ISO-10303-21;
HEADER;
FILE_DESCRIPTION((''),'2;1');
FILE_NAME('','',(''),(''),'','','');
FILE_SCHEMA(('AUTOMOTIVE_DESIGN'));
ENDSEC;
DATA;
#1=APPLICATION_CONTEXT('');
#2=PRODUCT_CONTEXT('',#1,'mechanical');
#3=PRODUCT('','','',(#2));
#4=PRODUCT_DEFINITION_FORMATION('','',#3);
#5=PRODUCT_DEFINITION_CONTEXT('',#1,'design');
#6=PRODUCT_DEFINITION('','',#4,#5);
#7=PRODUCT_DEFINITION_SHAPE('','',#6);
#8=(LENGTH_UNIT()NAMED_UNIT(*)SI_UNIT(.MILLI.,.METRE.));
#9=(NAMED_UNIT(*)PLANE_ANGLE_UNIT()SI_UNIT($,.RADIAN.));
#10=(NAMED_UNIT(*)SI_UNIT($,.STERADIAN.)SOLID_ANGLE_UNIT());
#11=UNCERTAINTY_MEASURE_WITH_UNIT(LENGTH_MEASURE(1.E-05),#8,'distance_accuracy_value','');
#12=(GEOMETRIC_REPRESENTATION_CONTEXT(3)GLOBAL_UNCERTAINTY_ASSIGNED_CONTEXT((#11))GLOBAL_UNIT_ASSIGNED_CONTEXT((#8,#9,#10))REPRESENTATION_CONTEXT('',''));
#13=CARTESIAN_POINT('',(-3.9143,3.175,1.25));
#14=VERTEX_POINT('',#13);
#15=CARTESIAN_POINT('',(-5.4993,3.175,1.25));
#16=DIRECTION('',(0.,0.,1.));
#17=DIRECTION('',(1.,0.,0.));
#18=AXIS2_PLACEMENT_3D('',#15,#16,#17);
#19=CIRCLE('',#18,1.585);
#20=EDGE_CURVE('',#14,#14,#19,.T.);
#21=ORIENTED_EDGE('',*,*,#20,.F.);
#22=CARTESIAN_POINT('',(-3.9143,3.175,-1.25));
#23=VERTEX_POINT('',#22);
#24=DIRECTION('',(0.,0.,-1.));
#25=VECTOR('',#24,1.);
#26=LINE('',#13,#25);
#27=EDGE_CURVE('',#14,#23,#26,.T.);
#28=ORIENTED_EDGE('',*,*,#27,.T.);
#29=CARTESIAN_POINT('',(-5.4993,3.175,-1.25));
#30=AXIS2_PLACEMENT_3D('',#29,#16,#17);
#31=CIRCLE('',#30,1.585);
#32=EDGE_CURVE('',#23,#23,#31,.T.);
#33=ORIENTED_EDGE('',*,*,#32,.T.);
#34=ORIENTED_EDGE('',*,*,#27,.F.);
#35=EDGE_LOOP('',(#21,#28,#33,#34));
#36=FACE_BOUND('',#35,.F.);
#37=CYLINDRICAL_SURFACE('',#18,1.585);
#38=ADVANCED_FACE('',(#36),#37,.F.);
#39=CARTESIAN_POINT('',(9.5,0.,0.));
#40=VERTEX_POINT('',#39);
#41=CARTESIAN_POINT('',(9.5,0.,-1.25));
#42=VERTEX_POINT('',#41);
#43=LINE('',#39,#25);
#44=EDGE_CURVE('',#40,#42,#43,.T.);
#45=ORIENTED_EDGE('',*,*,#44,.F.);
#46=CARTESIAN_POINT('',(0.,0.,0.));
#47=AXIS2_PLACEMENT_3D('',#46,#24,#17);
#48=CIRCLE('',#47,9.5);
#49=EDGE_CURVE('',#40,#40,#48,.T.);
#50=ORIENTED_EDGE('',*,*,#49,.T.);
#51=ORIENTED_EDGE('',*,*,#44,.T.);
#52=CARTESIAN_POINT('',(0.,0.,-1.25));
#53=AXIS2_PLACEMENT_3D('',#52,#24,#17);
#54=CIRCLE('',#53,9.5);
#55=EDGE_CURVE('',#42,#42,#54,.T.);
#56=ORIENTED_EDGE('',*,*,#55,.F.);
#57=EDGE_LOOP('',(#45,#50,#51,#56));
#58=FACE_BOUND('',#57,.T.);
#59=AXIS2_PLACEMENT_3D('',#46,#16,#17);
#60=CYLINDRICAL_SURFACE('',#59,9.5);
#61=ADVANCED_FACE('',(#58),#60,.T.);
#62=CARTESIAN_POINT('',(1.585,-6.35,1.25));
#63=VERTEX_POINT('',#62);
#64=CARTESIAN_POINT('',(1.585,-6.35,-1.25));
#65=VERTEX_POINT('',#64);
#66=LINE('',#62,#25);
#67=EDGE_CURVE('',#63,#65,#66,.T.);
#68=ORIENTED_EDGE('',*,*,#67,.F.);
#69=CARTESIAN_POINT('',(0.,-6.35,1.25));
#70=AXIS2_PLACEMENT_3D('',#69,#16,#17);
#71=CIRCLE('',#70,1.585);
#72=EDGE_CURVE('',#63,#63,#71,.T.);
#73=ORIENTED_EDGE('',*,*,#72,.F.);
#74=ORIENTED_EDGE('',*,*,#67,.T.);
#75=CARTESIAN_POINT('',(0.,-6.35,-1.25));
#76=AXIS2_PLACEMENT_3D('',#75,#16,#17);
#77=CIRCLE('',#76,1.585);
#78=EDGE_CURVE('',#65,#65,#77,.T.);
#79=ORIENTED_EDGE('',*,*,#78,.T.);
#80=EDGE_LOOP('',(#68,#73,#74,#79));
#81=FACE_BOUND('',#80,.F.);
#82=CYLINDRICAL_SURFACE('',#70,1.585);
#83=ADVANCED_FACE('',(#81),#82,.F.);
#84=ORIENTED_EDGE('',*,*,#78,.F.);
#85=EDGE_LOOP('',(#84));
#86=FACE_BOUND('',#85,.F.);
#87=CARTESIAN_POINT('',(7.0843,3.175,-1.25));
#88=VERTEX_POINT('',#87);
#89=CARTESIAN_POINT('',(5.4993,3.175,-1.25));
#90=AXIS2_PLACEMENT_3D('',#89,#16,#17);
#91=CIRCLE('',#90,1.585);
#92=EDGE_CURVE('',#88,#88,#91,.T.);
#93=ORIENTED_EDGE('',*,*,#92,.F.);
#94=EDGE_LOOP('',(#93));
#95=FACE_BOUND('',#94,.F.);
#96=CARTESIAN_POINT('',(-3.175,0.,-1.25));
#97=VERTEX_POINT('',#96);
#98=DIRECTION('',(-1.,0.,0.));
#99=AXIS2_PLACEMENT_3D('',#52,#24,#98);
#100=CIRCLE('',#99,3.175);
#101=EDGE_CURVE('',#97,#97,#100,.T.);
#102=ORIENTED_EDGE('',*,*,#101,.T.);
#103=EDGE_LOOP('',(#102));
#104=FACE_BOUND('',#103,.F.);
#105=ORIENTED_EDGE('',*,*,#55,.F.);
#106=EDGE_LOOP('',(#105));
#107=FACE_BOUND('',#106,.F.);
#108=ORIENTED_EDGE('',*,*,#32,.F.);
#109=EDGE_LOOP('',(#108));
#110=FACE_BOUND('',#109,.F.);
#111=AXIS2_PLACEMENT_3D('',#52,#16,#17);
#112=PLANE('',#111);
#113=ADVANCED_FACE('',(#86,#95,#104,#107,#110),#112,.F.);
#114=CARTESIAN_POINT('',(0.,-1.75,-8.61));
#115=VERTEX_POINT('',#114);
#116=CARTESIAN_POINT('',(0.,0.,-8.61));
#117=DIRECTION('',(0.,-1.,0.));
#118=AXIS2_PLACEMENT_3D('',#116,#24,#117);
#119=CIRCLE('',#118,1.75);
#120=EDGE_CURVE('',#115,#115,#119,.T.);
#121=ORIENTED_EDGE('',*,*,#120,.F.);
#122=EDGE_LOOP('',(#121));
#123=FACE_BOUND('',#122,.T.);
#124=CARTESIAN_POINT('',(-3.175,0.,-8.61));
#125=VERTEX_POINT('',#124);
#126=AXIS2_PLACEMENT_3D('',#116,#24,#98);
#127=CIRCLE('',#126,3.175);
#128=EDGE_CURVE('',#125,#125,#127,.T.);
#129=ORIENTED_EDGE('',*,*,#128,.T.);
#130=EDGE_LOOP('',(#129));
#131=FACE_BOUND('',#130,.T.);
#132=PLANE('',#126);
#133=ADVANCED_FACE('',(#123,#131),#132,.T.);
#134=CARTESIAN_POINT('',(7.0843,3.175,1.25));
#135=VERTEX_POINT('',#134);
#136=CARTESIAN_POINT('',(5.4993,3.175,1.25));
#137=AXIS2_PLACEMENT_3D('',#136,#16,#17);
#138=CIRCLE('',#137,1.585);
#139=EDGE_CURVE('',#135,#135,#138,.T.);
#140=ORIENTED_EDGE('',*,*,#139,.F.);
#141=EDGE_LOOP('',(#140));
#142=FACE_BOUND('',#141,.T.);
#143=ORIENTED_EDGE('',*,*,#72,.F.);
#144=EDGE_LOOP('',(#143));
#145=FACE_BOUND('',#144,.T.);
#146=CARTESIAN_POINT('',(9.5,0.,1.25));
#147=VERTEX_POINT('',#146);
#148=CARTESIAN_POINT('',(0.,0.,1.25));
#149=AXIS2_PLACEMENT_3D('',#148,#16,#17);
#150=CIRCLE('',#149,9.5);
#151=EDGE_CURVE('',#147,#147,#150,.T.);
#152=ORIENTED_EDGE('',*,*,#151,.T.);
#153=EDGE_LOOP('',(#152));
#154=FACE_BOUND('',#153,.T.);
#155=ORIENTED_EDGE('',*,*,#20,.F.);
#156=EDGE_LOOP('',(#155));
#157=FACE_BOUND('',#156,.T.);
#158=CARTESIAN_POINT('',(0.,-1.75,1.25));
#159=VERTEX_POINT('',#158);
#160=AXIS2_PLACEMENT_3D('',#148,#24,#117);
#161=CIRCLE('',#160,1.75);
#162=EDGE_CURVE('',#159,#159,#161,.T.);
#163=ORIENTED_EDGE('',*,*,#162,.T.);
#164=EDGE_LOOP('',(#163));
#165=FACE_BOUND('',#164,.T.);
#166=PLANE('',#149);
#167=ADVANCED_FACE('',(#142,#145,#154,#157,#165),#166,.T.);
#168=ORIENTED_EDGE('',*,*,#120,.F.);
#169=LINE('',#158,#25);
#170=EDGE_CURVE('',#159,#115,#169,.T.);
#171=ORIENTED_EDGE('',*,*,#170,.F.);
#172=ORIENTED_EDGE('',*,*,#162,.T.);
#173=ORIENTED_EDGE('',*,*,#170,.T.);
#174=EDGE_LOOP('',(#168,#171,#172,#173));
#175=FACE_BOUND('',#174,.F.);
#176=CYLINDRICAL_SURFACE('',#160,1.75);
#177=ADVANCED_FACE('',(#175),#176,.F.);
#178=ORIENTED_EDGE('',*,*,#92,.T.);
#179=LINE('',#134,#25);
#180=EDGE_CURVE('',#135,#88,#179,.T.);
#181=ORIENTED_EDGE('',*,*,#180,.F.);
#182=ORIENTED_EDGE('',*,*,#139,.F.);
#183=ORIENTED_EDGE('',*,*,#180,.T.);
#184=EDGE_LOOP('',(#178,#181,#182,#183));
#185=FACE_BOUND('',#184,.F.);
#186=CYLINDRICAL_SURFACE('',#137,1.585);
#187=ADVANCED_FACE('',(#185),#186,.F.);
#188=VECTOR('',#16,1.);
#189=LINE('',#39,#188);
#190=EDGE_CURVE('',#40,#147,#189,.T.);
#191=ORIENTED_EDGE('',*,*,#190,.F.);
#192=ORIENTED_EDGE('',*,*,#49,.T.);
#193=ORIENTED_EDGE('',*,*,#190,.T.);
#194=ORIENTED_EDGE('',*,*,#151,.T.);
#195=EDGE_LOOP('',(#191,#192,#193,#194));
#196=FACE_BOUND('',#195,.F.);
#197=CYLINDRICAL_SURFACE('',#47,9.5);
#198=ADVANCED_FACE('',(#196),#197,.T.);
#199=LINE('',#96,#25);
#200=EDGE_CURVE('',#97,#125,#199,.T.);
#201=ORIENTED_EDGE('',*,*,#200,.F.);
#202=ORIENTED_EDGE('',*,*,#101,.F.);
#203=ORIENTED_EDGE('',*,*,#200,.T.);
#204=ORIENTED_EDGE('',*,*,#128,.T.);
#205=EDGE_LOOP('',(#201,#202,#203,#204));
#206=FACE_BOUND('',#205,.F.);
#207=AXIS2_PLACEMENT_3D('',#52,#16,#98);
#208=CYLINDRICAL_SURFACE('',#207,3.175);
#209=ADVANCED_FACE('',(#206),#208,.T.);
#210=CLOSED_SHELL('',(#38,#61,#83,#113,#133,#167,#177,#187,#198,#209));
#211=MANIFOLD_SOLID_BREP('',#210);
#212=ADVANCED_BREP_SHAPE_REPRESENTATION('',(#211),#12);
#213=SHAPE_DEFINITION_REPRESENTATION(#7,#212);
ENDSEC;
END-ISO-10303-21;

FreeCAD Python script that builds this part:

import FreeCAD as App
import Part
import Sketcher
Q = App.Units.Quantity

doc = App.newDocument("Part")
body = doc.addObject("PartDesign::Body", "Body")

# Sketch on XY plane
sketch1 = body.newObject("Sketcher::SketchObject", "Sketch")
sketch1.AttachmentSupport = (doc.getObject("XY_Plane"), [""])
sketch1.MapMode = "FlatFace"
sketch1.addGeometry([
    Part.Circle(App.Vector(0, 0, 0), App.Vector(0, 0, 1), 9.5),
    Part.Circle(App.Vector(0, 0, 0), App.Vector(0, 0, 1), 1.3),
], False)
sketch1.addConstraint([
    Sketcher.Constraint("Coincident", 0, 3, -1, 1),
    Sketcher.Constraint("Coincident", 1, 3, -1, 1),
    Sketcher.Constraint("Diameter", 0, Q("19 mm")),
    Sketcher.Constraint("Diameter", 1, Q("2.6 mm")),
])
pad1 = body.newObject("PartDesign::Pad", "Pad")
pad1.Profile = sketch1
pad1.Length = 2.5
pad1.Midplane = True

# Sketch on XY plane
sketch2 = body.newObject("Sketcher::SketchObject", "Sketch001")
sketch2.AttachmentSupport = (doc.getObject("XY_Plane"), [""])
sketch2.MapMode = "FlatFace"
sketch2.AttachmentOffset = App.Placement(App.Vector(0, 0, -1.25), App.Rotation())
sketch2.addGeometry([
    Part.Circle(App.Vector(0, 0, 0), App.Vector(0, 0, 1), 3.2),
    Part.Circle(App.Vector(0, 0, 0), App.Vector(0, 0, 1), 1.3),
], False)
sketch2.addConstraint([
    Sketcher.Constraint("Coincident", 0, 3, -1, 1),
    Sketcher.Constraint("Coincident", 1, 3, -1, 1),
    Sketcher.Constraint("Diameter", 0, Q("6.35 mm")),
    Sketcher.Constraint("Diameter", 1, Q("2.6042 mm")),
])
pad2 = body.newObject("PartDesign::Pad", "Pad001")
pad2.Profile = sketch2
pad2.Length = 7.36
pad2.Reversed = True

# Sketch on XY plane
sketch3 = body.newObject("Sketcher::SketchObject", "Sketch002")
sketch3.AttachmentSupport = (doc.getObject("XY_Plane"), [""])
sketch3.MapMode = "FlatFace"
sketch3.AttachmentOffset = App.Placement(App.Vector(0, 0, 1.25), App.Rotation())
sketch3.addGeometry(Part.Circle(App.Vector(0, 0, 0), App.Vector(0, 0, 1), 1.8), False)
sketch3.addConstraint([
    Sketcher.Constraint("Coincident", 0, 3, -1, 1),
    Sketcher.Constraint("Diameter", 0, Q("3.5 mm")),
])
doc.recompute()
hole = body.newObject("PartDesign::Hole", "Hole")
hole.Profile = sketch3
hole.ThreadType = "None"
hole.Diameter = 3.5
hole.DepthType = "ThroughAll"

# Sketch on XY plane
sketch4 = body.newObject("Sketcher::SketchObject", "Sketch003")
sketch4.AttachmentSupport = (doc.getObject("XY_Plane"), [""])
sketch4.MapMode = "FlatFace"
sketch4.AttachmentOffset = App.Placement(App.Vector(0, 0, 1.25), App.Rotation())
sketch4.addGeometry([
    Part.Circle(App.Vector(0, -6.3, 0), App.Vector(0, 0, 1), 1.6),
    Part.Circle(App.Vector(5.5, 3.2, 0), App.Vector(0, 0, 1), 1.6),
    Part.Circle(App.Vector(-5.5, 3.2, 0), App.Vector(0, 0, 1), 1.6),
], False)
sketch4.addConstraint([
    Sketcher.Constraint("Equal", 0, 1),
    Sketcher.Constraint("Equal", 1, 2),
    Sketcher.Constraint("Symmetric", 1, 3, 2, 3, -2),
    Sketcher.Constraint("PointOnObject", 0, 3, -2),
    Sketcher.Constraint("Diameter", 0, Q("3.17 mm")),
    Sketcher.Constraint("DistanceY", 0, 3, -1, 1, Q("6.35 mm")),
    Sketcher.Constraint("DistanceY", -1, 1, 1, 3, Q("3.175 mm")),
    Sketcher.Constraint("DistanceX", -1, 1, 1, 3, Q("5.4993 mm")),
])
pocket1 = body.newObject("PartDesign::Pocket", "Pocket")
pocket1.Profile = sketch4
pocket1.Type = "ThroughAll"

doc.recompute()
